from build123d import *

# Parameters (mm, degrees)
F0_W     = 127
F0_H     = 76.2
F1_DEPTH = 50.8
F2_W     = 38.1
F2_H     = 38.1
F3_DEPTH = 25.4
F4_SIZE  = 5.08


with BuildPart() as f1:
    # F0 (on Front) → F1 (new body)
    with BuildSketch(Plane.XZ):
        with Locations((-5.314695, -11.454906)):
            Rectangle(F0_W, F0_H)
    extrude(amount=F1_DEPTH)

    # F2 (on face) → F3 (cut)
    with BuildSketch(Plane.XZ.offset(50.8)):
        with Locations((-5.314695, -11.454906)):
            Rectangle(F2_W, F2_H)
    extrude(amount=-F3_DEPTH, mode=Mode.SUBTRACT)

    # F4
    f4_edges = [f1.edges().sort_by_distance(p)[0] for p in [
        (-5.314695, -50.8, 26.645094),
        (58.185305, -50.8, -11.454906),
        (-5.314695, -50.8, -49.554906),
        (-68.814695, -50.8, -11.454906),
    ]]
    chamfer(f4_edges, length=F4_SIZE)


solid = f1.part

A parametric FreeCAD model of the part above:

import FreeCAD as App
import Part
import Sketcher
Q = App.Units.Quantity


def edges_at(feature, points):
    """Names of the edges that pass closest to the given points."""
    edges = feature.Shape.Edges
    near = lambda p: min(range(len(edges)), key=lambda i: edges[i].distToShape(Part.Vertex(*p))[0])
    return sorted({f"Edge{near(p) + 1}" for p in points})

doc = App.newDocument("Part")
params = doc.addObject("Spreadsheet::Sheet", "Params")
for row, (alias, value) in enumerate([
    ("sketch1_width", "5 in"),
    ("sketch1_height", "3 in"),
    ("pad1_length", "2 in"),
    ("sketch2_width", "1.5 in"),
    ("pocket1_length", "1 in"),
    ("chamfer_size", "0.2 in"),
], start=1):
    params.set(f"A{row}", alias)
    params.set(f"B{row}", "=" + value)
    params.setAlias(f"B{row}", alias)

body = doc.addObject("PartDesign::Body", "Body")

# Sketch on XZ plane
sketch1 = doc.addObject("Sketcher::SketchObject", "Sketch")
body.addObject(sketch1)
sketch1.AttachmentSupport = (doc.XZ_Plane, [""])
sketch1.MapMode = "FlatFace"
sketch1.addGeometry([
    Part.LineSegment(App.Vector(-69, 27, 0), App.Vector(-69, -50, 0)),
    Part.LineSegment(App.Vector(-69, -50, 0), App.Vector(58, -50, 0)),
    Part.LineSegment(App.Vector(58, -50, 0), App.Vector(58, 27, 0)),
    Part.LineSegment(App.Vector(58, 27, 0), App.Vector(-69, 27, 0)),
], False)
sketch1.addConstraint([
    Sketcher.Constraint("Coincident", 0, 2, 1, 1),
    Sketcher.Constraint("Coincident", 1, 2, 2, 1),
    Sketcher.Constraint("Coincident", 2, 2, 3, 1),
    Sketcher.Constraint("Coincident", 3, 2, 0, 1),
    Sketcher.Constraint("Vertical", 0),
    Sketcher.Constraint("Horizontal", 1),
    Sketcher.Constraint("Vertical", 2),
    Sketcher.Constraint("Horizontal", 3),
    Sketcher.Constraint("DistanceX", 1, 1, 1, 2, Q("5 in")),
    Sketcher.Constraint("DistanceY", 0, 2, 0, 1, Q("3 in")),
    Sketcher.Constraint("DistanceX", 0, 2, -1, 1, Q("68.814695 mm")),
    Sketcher.Constraint("DistanceY", 0, 2, -1, 1, Q("49.554906 mm")),
])
sketch1.setExpression("Constraints[8]", "Params.sketch1_width")
sketch1.setExpression("Constraints[9]", "Params.sketch1_height")
pad1 = doc.addObject("PartDesign::Pad", "Pad")
body.addObject(pad1)
pad1.Profile = sketch1
pad1.setExpression("Length", "Params.pad1_length")

# Sketch on XZ plane
sketch2 = doc.addObject("Sketcher::SketchObject", "Sketch001")
body.addObject(sketch2)
sketch2.AttachmentSupport = (doc.XZ_Plane, [""])
sketch2.MapMode = "FlatFace"
sketch2.AttachmentOffset = App.Placement(App.Vector(0, 0, 2 * 25.4), App.Rotation())
sketch2.addGeometry([
    Part.LineSegment(App.Vector(-24, 8, 0), App.Vector(-24, -31, 0)),
    Part.LineSegment(App.Vector(-24, -31, 0), App.Vector(14, -31, 0)),
    Part.LineSegment(App.Vector(14, -31, 0), App.Vector(14, 8, 0)),
    Part.LineSegment(App.Vector(14, 8, 0), App.Vector(-24, 8, 0)),
], False)
sketch2.addConstraint([
    Sketcher.Constraint("Coincident", 0, 2, 1, 1),
    Sketcher.Constraint("Coincident", 1, 2, 2, 1),
    Sketcher.Constraint("Coincident", 2, 2, 3, 1),
    Sketcher.Constraint("Coincident", 3, 2, 0, 1),
    Sketcher.Constraint("Vertical", 0),
    Sketcher.Constraint("Horizontal", 1),
    Sketcher.Constraint("Vertical", 2),
    Sketcher.Constraint("Horizontal", 3),
    Sketcher.Constraint("Equal", 3, 0),
    Sketcher.Constraint("DistanceX", 1, 1, 1, 2, Q("1.5 in")),
    Sketcher.Constraint("DistanceX", 0, 2, -1, 1, Q("24.364695 mm")),
    Sketcher.Constraint("DistanceY", 0, 2, -1, 1, Q("30.504906 mm")),
])
sketch2.setExpression("Constraints[9]", "Params.sketch2_width")
pocket1 = doc.addObject("PartDesign::Pocket", "Pocket")
body.addObject(pocket1)
pocket1.Profile = sketch2
pocket1.setExpression("Length", "Params.pocket1_length")
doc.recompute()

chamfer = doc.addObject("PartDesign::Chamfer", "Chamfer")
body.addObject(chamfer)
chamfer.Base = (pocket1, edges_at(pocket1, [
    (-5.315, -50.8, 26.645),
    (58.185, -50.8, -11.455),
    (-5.315, -50.8, -49.555),
    (-68.815, -50.8, -11.455),
]))
chamfer.setExpression("Size", "Params.chamfer_size")

doc.recompute()
